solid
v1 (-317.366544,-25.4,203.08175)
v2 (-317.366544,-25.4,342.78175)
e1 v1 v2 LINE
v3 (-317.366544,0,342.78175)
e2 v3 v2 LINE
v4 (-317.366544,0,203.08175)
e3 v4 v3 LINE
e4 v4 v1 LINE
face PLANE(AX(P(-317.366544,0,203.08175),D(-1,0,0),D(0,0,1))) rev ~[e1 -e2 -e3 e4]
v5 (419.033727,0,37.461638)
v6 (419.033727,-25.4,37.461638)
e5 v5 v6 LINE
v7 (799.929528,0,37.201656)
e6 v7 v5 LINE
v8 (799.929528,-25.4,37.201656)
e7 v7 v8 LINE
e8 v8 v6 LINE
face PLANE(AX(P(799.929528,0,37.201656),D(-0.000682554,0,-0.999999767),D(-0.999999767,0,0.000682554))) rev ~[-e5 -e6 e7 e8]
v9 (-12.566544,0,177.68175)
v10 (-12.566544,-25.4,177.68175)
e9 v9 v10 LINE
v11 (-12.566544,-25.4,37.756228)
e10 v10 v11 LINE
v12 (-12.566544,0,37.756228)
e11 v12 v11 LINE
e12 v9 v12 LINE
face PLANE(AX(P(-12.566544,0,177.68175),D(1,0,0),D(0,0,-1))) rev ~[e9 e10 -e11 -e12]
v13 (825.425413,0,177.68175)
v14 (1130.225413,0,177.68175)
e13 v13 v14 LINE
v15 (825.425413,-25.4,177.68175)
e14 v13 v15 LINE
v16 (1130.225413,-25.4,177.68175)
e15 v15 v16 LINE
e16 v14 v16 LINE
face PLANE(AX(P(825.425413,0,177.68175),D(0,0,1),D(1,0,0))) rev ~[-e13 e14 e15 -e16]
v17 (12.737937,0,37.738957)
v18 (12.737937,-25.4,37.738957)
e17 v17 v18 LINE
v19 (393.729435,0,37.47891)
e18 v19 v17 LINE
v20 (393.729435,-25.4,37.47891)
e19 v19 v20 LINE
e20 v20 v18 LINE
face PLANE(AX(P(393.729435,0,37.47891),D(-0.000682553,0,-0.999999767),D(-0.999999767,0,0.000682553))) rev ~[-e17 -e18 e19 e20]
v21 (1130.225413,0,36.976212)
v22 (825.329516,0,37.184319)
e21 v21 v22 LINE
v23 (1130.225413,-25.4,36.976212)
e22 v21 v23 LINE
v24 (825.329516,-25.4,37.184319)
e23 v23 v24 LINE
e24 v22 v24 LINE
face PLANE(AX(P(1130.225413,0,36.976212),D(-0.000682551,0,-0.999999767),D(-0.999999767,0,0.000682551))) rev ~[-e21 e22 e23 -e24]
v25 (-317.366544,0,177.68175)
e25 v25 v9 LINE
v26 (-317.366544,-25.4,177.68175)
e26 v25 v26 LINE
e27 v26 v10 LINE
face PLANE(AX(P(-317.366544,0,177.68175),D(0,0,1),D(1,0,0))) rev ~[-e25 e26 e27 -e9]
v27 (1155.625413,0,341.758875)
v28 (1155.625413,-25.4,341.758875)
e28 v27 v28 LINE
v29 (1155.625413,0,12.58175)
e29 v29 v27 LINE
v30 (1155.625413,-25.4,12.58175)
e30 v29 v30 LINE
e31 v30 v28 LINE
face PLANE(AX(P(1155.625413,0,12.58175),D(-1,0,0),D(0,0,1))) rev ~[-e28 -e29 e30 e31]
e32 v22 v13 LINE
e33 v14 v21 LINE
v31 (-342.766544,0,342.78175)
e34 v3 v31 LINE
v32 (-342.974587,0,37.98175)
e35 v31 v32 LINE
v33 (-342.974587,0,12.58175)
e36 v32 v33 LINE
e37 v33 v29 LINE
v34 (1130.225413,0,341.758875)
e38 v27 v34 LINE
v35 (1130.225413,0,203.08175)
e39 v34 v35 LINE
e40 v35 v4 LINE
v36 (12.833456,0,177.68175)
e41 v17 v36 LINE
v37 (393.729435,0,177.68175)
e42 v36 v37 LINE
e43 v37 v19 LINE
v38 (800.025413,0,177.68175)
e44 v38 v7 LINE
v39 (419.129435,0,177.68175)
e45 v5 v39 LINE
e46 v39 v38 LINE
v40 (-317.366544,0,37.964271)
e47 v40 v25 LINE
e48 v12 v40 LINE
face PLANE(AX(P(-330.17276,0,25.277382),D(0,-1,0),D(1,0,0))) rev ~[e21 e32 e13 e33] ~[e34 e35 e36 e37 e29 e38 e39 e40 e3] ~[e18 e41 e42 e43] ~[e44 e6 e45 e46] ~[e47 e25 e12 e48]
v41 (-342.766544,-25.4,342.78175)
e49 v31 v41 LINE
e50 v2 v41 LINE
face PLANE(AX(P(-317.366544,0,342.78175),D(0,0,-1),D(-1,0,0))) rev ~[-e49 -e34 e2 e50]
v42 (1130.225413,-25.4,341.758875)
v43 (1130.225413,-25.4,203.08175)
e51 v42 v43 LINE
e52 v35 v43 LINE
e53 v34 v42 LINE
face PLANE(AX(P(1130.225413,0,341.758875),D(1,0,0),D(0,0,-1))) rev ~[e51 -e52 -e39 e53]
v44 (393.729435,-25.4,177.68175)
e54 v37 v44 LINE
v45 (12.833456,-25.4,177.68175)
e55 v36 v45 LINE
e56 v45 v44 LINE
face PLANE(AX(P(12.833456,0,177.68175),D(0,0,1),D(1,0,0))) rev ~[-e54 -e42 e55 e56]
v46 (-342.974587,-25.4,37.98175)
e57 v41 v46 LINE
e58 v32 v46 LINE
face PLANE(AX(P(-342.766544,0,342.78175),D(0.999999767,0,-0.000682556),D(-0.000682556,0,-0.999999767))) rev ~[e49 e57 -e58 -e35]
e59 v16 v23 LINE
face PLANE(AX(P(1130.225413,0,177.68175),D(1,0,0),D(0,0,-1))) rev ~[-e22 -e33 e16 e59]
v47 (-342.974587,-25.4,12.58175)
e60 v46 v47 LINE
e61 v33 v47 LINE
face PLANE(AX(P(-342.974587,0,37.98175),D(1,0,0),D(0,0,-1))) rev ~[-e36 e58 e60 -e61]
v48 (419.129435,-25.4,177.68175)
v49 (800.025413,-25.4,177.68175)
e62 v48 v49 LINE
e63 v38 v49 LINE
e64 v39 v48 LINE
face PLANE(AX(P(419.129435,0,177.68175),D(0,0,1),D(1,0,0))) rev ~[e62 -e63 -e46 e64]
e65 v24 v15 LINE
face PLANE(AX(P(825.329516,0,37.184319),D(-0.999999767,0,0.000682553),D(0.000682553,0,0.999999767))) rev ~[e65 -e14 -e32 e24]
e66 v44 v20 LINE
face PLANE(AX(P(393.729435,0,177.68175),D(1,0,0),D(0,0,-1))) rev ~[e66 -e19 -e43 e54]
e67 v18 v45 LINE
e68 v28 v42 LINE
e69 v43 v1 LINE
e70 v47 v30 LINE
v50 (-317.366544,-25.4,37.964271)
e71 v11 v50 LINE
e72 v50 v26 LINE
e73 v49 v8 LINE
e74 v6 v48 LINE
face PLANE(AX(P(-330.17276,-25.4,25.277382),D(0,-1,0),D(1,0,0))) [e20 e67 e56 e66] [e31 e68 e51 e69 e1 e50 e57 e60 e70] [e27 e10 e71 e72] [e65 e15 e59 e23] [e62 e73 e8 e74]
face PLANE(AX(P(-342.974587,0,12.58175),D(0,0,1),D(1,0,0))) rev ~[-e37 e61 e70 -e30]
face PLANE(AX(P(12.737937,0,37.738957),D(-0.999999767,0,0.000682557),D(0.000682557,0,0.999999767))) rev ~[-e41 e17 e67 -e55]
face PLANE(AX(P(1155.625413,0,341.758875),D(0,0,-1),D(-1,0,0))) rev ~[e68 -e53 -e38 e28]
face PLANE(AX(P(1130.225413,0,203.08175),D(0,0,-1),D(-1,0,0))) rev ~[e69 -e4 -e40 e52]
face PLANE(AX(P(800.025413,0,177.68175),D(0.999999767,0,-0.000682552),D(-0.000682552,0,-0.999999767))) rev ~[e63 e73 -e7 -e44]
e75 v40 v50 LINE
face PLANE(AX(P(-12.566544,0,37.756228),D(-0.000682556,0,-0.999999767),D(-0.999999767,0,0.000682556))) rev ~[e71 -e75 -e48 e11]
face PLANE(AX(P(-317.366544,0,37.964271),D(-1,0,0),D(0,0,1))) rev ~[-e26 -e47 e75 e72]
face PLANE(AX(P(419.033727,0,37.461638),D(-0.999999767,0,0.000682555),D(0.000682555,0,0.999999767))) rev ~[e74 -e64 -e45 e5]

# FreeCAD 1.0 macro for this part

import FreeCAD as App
import Part
import Sketcher

V = App.Vector
Q = App.Units.Quantity


def add_polygon(sketch, points):
    """Adds a closed chain of lines whose ends are joined by coincident constraints."""
    first, n = sketch.GeometryCount, len(points)
    for a, b in zip(points, points[1:] + points[:1]):
        sketch.addGeometry(Part.LineSegment(App.Vector(*a, 0), App.Vector(*b, 0)), False)
    for i in range(n):
        sketch.addConstraint(Sketcher.Constraint("Coincident", first + i, 2, first + (i + 1) % n, 1))

doc = App.newDocument("Part")
body = doc.addObject("PartDesign::Body", "Body")

# Sketch on XZ plane
sketch1 = doc.addObject("Sketcher::SketchObject", "Sketch")
body.addObject(sketch1)
sketch1.AttachmentSupport = (doc.XZ_Plane, [""])
sketch1.MapMode = "FlatFace"
add_polygon(sketch1, [(-343, 38), (-343, 13), (1156, 13), (1156, 342), (1130, 342), (1130, 203), (-317, 203), (-317, 343), (-343, 343)])  # lines 0-8
add_polygon(sketch1, [(1130, 178), (1130, 37), (825, 37), (825, 178)])  # lines 9-12
add_polygon(sketch1, [(800, 37), (419, 37), (419, 178), (800, 178)])  # lines 13-16
add_polygon(sketch1, [(394, 37), (13, 38), (13, 178), (394, 178)])  # lines 17-20
add_polygon(sketch1, [(-13, 38), (-317, 38), (-317, 178), (-13, 178)])  # lines 21-24
sketch1.addConstraint([
    Sketcher.Constraint("Vertical", 0),
    Sketcher.Constraint("Horizontal", 1),
    Sketcher.Constraint("Vertical", 2),
    Sketcher.Constraint("Horizontal", 3),
    Sketcher.Constraint("Vertical", 4),
    Sketcher.Constraint("Horizontal", 5),
    Sketcher.Constraint("Vertical", 6),
    Sketcher.Constraint("Horizontal", 7),
    Sketcher.Constraint("Vertical", 9),
    Sketcher.Constraint("Horizontal", 12),
    Sketcher.Constraint("Horizontal", 15),
    Sketcher.Constraint("Horizontal", 19),
    Sketcher.Constraint("Vertical", 20),
    Sketcher.Constraint("Vertical", 22),
    Sketcher.Constraint("Horizontal", 23),
    Sketcher.Constraint("Vertical", 24),
    Sketcher.Constraint("Perpendicular", 8, 10),
    Sketcher.Constraint("Perpendicular", 10, 11),
    Sketcher.Constraint("Perpendicular", 11, 13),
    Sketcher.Constraint("Perpendicular", 13, 14),
    Sketcher.Constraint("Parallel", 14, 16),
    Sketcher.Constraint("Perpendicular", 16, 17),
    Sketcher.Constraint("Perpendicular", 17, 18),
    Sketcher.Constraint("Perpendicular", 18, 21),
    Sketcher.Constraint("Horizontal", 12, 2, 14, 2),
    Sketcher.Constraint("Horizontal", 15, 2, 18, 2),
    Sketcher.Constraint("Horizontal", 19, 2, 22, 2),
    Sketcher.Constraint("Vertical", 4, 2, 9, 2),
    Sketcher.Constraint("Vertical", 6, 2, 21, 2),
    Sketcher.Constraint("Equal", 3, 7),
    Sketcher.Constraint("Equal", 15, 19),
    Sketcher.Constraint("Equal", 12, 23),
    Sketcher.Constraint("Equal", 7, 0),
    Sketcher.Constraint("Equal", 8, 21),
    Sketcher.Constraint("DistanceX", 1, 1, 1, 2, Q("59 in")),
    Sketcher.Constraint("DistanceX", 3, 2, 3, 1, Q("1 in")),
    Sketcher.Constraint("DistanceX", 12, 1, 12, 2, Q("12 in")),
    Sketcher.Constraint("DistanceY", 6, 1, 6, 2, Q("5.5 in")),
    Sketcher.Constraint("DistanceY", 11, 2, 4, 2, Q("1 in")),
    Sketcher.Constraint("DistanceX", 15, 2, 11, 2, Q("1 in")),
    Sketcher.Constraint("DistanceX", 5, 2, 18, 2, Q("13 in")),
    Sketcher.Constraint("DistanceX", 19, 2, 14, 2, Q("1 in")),
    Sketcher.Constraint("DistanceX", 19, 1, 19, 2, Q("380.895979 mm")),
    Sketcher.Constraint("DistanceY", 20, 2, 20, 1, Q("140.20284 mm")),
    Sketcher.Constraint("DistanceY", 22, 1, 22, 2, Q("139.717479 mm")),
    Sketcher.Constraint("DistanceY", 2, 1, 2, 2, Q("329.177125 mm")),
    Sketcher.Constraint("DistanceY", 9, 2, 9, 1, Q("140.705538 mm")),
    Sketcher.Constraint("DistanceY", -1, 1, 0, 2, Q("12.58175 mm")),
    Sketcher.Constraint("DistanceX", -1, 1, 16, 2, Q("799.929528 mm")),
    Sketcher.Constraint("DistanceY", 10, 2, 13, 2, Q("0.277319 mm")),
])
pad1 = doc.addObject("PartDesign::Pad", "Pad")
body.addObject(pad1)
pad1.Profile = sketch1
pad1.Length = Q("1 in")

doc.recompute()
